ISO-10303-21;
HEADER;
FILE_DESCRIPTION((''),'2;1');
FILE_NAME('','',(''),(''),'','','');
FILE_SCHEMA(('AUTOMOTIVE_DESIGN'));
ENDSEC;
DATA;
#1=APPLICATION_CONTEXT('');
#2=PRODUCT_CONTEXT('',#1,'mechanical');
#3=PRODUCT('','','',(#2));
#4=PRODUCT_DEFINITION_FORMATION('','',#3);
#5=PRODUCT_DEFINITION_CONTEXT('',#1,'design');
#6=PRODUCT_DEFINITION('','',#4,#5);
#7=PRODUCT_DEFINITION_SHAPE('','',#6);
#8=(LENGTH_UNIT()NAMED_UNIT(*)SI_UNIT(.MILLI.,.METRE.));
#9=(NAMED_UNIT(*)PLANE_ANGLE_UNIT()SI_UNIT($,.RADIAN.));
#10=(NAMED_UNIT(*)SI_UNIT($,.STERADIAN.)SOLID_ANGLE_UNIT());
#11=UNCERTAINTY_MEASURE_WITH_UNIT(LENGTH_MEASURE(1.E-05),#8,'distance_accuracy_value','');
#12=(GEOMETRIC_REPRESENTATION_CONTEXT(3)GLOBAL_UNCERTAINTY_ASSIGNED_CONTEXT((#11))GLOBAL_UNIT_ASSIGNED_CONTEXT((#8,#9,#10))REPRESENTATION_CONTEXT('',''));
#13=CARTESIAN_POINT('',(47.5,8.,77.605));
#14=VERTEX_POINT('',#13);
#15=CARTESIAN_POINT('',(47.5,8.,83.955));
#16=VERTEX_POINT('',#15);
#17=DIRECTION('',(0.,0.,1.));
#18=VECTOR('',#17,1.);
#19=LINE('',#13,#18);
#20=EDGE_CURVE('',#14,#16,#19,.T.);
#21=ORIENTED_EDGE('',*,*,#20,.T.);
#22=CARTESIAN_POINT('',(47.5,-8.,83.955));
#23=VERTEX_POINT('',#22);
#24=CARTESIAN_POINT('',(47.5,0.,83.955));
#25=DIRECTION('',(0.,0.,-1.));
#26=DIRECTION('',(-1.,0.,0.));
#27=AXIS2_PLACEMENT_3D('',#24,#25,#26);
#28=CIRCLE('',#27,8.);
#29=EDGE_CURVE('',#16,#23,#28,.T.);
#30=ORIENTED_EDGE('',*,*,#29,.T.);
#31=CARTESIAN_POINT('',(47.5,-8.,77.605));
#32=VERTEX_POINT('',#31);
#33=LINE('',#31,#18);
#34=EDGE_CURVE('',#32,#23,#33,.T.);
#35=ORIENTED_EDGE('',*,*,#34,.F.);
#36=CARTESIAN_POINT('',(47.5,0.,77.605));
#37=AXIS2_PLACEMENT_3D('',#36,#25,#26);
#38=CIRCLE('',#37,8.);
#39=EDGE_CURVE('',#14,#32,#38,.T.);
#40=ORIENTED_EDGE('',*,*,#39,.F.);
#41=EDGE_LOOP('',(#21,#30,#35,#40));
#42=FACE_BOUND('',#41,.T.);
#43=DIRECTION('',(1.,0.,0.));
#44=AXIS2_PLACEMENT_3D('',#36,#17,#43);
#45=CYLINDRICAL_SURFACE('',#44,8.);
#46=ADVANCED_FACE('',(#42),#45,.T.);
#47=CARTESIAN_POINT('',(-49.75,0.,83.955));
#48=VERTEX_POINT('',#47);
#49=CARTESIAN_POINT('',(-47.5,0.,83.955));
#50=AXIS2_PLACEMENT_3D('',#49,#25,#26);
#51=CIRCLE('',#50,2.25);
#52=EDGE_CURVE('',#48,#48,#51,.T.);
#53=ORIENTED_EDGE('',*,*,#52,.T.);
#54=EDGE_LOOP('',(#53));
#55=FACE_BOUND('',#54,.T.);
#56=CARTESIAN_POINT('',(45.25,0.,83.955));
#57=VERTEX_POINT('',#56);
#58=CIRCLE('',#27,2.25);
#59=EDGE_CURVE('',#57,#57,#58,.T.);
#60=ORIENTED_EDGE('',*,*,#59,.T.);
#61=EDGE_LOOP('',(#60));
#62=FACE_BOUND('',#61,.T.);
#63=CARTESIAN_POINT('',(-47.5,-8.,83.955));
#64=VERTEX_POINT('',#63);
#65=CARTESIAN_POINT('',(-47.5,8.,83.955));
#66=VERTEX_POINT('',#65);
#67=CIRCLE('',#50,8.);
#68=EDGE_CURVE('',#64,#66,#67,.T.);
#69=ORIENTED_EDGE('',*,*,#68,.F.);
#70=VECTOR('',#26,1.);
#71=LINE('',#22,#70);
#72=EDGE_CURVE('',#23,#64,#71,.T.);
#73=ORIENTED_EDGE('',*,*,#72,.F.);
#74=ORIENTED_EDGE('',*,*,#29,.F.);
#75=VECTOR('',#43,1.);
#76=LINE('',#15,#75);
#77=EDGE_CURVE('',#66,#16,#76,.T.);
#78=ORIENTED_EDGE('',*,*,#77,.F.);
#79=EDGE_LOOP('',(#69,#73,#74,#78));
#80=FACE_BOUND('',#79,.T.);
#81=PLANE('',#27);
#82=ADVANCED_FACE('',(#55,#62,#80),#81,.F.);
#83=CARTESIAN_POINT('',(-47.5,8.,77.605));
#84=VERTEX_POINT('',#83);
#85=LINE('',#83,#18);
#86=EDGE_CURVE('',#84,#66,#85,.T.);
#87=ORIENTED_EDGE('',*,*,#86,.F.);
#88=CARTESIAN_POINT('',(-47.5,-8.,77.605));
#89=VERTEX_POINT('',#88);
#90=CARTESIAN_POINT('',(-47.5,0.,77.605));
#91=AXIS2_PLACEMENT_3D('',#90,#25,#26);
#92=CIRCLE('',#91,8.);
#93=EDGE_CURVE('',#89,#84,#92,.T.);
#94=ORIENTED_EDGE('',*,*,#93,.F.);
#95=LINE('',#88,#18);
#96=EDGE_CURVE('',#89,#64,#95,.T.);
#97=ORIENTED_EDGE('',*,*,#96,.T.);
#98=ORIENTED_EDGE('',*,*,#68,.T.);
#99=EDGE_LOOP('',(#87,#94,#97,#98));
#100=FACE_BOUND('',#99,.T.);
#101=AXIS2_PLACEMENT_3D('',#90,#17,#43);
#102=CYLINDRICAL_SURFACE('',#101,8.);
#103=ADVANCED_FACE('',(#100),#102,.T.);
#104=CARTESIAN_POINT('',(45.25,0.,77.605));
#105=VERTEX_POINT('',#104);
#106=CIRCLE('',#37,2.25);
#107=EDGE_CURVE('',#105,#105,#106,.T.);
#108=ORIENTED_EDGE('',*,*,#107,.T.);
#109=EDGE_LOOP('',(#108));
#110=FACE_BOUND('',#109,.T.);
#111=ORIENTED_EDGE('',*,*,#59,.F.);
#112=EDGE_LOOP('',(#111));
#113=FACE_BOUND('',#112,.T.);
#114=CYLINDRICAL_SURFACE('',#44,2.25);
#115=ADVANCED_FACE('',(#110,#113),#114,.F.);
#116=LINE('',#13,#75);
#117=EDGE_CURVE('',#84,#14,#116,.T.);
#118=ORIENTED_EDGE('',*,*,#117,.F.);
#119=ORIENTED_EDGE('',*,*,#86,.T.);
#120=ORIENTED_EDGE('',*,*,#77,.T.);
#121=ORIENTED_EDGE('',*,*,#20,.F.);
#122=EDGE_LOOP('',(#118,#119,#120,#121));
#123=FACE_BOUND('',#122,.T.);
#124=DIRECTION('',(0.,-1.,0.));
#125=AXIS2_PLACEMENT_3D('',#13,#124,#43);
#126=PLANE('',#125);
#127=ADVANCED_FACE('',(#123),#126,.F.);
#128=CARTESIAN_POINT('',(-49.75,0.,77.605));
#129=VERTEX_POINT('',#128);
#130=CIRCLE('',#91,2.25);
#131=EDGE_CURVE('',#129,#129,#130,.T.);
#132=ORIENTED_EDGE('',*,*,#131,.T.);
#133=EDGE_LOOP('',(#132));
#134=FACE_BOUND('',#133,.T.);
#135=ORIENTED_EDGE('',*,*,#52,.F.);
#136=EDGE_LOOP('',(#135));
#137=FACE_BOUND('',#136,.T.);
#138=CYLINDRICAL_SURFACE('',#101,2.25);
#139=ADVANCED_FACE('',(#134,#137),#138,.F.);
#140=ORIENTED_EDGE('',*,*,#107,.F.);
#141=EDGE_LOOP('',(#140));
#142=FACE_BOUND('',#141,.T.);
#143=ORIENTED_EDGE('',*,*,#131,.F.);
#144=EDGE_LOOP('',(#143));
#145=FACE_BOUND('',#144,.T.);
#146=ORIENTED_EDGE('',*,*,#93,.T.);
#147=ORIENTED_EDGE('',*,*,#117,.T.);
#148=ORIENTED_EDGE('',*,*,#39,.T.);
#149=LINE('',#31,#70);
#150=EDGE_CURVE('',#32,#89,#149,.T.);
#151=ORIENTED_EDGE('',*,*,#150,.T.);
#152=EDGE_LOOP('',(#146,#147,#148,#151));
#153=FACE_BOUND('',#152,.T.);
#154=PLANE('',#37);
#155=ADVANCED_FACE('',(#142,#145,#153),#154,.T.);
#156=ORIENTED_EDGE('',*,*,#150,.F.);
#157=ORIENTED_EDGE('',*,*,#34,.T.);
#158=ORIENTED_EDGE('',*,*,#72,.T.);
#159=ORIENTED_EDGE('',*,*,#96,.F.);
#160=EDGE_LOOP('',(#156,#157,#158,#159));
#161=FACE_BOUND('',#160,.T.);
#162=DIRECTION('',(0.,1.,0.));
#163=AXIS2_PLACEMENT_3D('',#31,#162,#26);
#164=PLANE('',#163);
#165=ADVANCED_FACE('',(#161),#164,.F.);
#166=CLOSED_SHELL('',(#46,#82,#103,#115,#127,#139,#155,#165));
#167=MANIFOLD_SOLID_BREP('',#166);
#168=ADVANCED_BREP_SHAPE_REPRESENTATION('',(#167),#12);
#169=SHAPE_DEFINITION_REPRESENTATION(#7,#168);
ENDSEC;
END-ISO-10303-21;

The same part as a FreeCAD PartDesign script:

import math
import FreeCAD as App
import Part
import Sketcher

doc = App.newDocument("Part")
body = doc.addObject("PartDesign::Body", "Body")

sketch1 = body.newObject("Sketcher::SketchObject", "Sketch")
sketch1.AttachmentSupport = (doc.getObject("XY_Plane"), [""])
sketch1.MapMode = "FlatFace"
sketch1.AttachmentOffset = App.Placement(App.Vector(0, 0, 83.955), App.Rotation())
sketch1.addGeometry([
    Part.LineSegment(App.Vector(-47.5, 8, 0), App.Vector(47.5, 8, 0)),
    Part.ArcOfCircle(Part.Circle(App.Vector(47.5, 0, 0), App.Vector(0, 0, 1), 8), math.radians(-90), math.radians(90)),
    Part.LineSegment(App.Vector(47.5, -8, 0), App.Vector(-47.5, -8, 0)),
    Part.ArcOfCircle(Part.Circle(App.Vector(-47.5, 0, 0), App.Vector(0, 0, 1), 8), math.radians(90), math.radians(270)),
    Part.Circle(App.Vector(-47.5, 0, 0), App.Vector(0, 0, 1), 2.2),
    Part.Circle(App.Vector(47.5, 0, 0), App.Vector(0, 0, 1), 2.2),
], False)
sketch1.addConstraint([
    Sketcher.Constraint("Tangent", 0, 2, 1, 2),
    Sketcher.Constraint("Tangent", 1, 1, 2, 1),
    Sketcher.Constraint("Tangent", 2, 2, 3, 2),
    Sketcher.Constraint("Tangent", 3, 1, 0, 1),
    Sketcher.Constraint("Horizontal", 0),
    Sketcher.Constraint("Horizontal", 2),
    Sketcher.Constraint("Coincident", 4, 3, 3, 3),
    Sketcher.Constraint("Coincident", 5, 3, 1, 3),
    Sketcher.Constraint("Equal", 4, 5),
    Sketcher.Constraint("Symmetric", 1, 3, 3, 3, -1, 1),
    Sketcher.Constraint("Radius", 1, 8.0),
    Sketcher.Constraint("Diameter", 4, 4.5),
    Sketcher.Constraint("DistanceX", 0, 1, 0, 2, 95.0),
])
pad1 = body.newObject("PartDesign::Pad", "Pad")
pad1.Profile = sketch1
pad1.Length = 6.35
pad1.Reversed = True

doc.recompute()
